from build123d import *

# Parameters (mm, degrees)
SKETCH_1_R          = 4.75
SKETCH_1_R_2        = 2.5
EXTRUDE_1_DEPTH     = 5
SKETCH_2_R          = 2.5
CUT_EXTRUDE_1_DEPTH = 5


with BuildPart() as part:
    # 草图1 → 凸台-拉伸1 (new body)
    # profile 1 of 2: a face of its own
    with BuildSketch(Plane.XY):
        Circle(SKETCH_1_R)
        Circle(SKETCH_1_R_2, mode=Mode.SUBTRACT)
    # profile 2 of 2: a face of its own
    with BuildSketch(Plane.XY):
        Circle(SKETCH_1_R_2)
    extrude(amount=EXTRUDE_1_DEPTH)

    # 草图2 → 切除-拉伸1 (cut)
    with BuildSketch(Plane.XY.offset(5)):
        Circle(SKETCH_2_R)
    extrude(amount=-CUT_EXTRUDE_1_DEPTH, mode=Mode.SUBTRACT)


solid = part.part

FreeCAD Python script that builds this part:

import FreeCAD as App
import Part
import Sketcher

V = App.Vector
Q = App.Units.Quantity

doc = App.newDocument("Part")
body = doc.addObject("PartDesign::Body", "Body")

# Sketch on XY plane
sketch1 = doc.addObject("Sketcher::SketchObject", "Sketch")
body.addObject(sketch1)
sketch1.AttachmentSupport = (doc.XY_Plane, [""])
sketch1.MapMode = "FlatFace"
sketch1.addGeometry(Part.Circle(V(0, 0, 0), V(0, 0, 1), 4.8), False)
sketch1.addConstraint([
    Sketcher.Constraint("Coincident", 0, 3, -1, 1),
    Sketcher.Constraint("Diameter", 0, Q("9.5 mm")),
])
pad1 = doc.addObject("PartDesign::Pad", "Pad")
body.addObject(pad1)
pad1.Profile = sketch1
pad1.Length = 5

# Sketch on XY plane
sketch2 = doc.addObject("Sketcher::SketchObject", "Sketch001")
body.addObject(sketch2)
sketch2.AttachmentSupport = (doc.XY_Plane, [""])
sketch2.MapMode = "FlatFace"
sketch2.AttachmentOffset = App.Placement(V(0, 0, 5), App.Rotation())
sketch2.addGeometry(Part.Circle(V(0, 0, 0), V(0, 0, 1), 2.5), False)
sketch2.addConstraint([
    Sketcher.Constraint("Coincident", 0, 3, -1, 1),
    Sketcher.Constraint("Diameter", 0, Q("5 mm")),
])
pocket1 = doc.addObject("PartDesign::Pocket", "Pocket")
body.addObject(pocket1)
pocket1.Profile = sketch2
pocket1.Length = 5

doc.recompute()
